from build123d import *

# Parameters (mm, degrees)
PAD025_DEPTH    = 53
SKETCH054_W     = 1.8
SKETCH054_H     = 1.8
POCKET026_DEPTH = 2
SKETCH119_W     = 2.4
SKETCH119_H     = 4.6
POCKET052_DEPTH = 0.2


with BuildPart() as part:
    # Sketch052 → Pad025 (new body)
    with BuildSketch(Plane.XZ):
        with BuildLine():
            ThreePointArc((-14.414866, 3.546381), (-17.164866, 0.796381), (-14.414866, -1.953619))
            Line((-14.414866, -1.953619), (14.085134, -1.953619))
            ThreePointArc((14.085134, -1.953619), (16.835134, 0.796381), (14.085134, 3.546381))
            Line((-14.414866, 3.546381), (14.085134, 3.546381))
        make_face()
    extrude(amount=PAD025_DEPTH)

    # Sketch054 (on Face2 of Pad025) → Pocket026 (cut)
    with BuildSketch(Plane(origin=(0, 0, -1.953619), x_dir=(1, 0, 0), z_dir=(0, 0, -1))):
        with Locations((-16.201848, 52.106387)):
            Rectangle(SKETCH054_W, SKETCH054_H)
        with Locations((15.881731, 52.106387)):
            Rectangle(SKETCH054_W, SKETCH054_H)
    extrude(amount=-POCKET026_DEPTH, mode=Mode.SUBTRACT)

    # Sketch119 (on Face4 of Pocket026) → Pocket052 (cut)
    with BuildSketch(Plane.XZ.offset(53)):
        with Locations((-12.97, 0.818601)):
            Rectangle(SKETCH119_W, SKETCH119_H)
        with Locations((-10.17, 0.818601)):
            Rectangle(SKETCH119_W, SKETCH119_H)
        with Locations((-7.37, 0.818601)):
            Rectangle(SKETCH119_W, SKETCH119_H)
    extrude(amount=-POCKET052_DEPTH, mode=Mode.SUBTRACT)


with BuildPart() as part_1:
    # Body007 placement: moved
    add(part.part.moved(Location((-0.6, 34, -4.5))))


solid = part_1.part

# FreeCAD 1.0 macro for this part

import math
import FreeCAD as App
import Part
import Sketcher
from FreeCAD import Vector

doc = App.newDocument("Part")
body = doc.addObject("PartDesign::Body", "Body")

# Sketch on XZ plane
sketch1 = doc.addObject("Sketcher::SketchObject", "Sketch")
body.addObject(sketch1)
sketch1.AttachmentSupport = (doc.XZ_Plane, [""])
sketch1.MapMode = "FlatFace"
sketch1.addGeometry([
    Part.ArcOfCircle(Part.Circle(Vector(-14.414866, 0.796381, 0), Vector(0, 0, 1), 2.75), math.radians(90), math.radians(270)),
    Part.LineSegment(Vector(-14.414866, -1.953619, 0), Vector(14.085134, -1.953619, 0)),
    Part.ArcOfCircle(Part.Circle(Vector(14.085134, 0.796381, 0), Vector(0, 0, 1), 2.75), math.radians(-90), math.radians(90)),
    Part.LineSegment(Vector(14.085134, 3.546381, 0), Vector(-14.414866, 3.546381, 0)),
], False)
sketch1.addConstraint([
    Sketcher.Constraint("Tangent", 0, 2, 1, 1),
    Sketcher.Constraint("Tangent", 1, 2, 2, 1),
    Sketcher.Constraint("Tangent", 2, 2, 3, 1),
    Sketcher.Constraint("Tangent", 3, 2, 0, 1),
    Sketcher.Constraint("Horizontal", 1),
    Sketcher.Constraint("Horizontal", 3),
    Sketcher.Constraint("Radius", 0, 2.75),
    Sketcher.Constraint("DistanceX", 1, 1, 1, 2, 28.5),
    Sketcher.Constraint("DistanceY", -1, 1, 0, 3, 0.796381),
    Sketcher.Constraint("DistanceX", 0, 3, -1, 1, 14.414866),
])
pad1 = doc.addObject("PartDesign::Pad", "Pad")
body.addObject(pad1)
pad1.Profile = sketch1
pad1.Length = 53

# Sketch on XY plane
sketch2 = doc.addObject("Sketcher::SketchObject", "Sketch001")
body.addObject(sketch2)
sketch2.AttachmentSupport = (doc.XY_Plane, [""])
sketch2.MapMode = "FlatFace"
sketch2.AttachmentOffset = App.Placement(Vector(0, 0, -1.953619), App.Rotation())
sketch2.addGeometry([
    Part.LineSegment(Vector(-17.101848, -53.006387, 0), Vector(-17.101848, -51.206387, 0)),  # 0
    Part.LineSegment(Vector(-17.101848, -51.206387, 0), Vector(-15.301848, -51.206387, 0)),  # 1
    Part.LineSegment(Vector(-15.301848, -51.206387, 0), Vector(-15.301848, -53.006387, 0)),  # 2
    Part.LineSegment(Vector(-15.301848, -53.006387, 0), Vector(-17.101848, -53.006387, 0)),  # 3
    Part.LineSegment(Vector(14.981731, -53.006387, 0), Vector(14.981731, -51.206387, 0)),  # 4
    Part.LineSegment(Vector(14.981731, -51.206387, 0), Vector(16.781731, -51.206387, 0)),  # 5
    Part.LineSegment(Vector(16.781731, -51.206387, 0), Vector(16.781731, -53.006387, 0)),  # 6
    Part.LineSegment(Vector(16.781731, -53.006387, 0), Vector(14.981731, -53.006387, 0)),  # 7
], False)
sketch2.addConstraint([
    Sketcher.Constraint("Coincident", 0, 2, 1, 1),
    Sketcher.Constraint("Coincident", 1, 2, 2, 1),
    Sketcher.Constraint("Coincident", 2, 2, 3, 1),
    Sketcher.Constraint("Coincident", 3, 2, 0, 1),
    Sketcher.Constraint("Coincident", 4, 2, 5, 1),
    Sketcher.Constraint("Coincident", 5, 2, 6, 1),
    Sketcher.Constraint("Coincident", 6, 2, 7, 1),
    Sketcher.Constraint("Coincident", 7, 2, 4, 1),
    Sketcher.Constraint("Vertical", 0),
    Sketcher.Constraint("Horizontal", 1),
    Sketcher.Constraint("Vertical", 2),
    Sketcher.Constraint("Horizontal", 3),
    Sketcher.Constraint("Vertical", 4),
    Sketcher.Constraint("Horizontal", 5),
    Sketcher.Constraint("Vertical", 6),
    Sketcher.Constraint("Horizontal", 7),
    Sketcher.Constraint("Horizontal", 1, 2, 4, 2),
    Sketcher.Constraint("Horizontal", 3, 2, 6, 2),
    Sketcher.Constraint("Equal", 3, 5),
    Sketcher.Constraint("Equal", 7, 0),
    Sketcher.Constraint("DistanceX", 1, 1, 1, 2, 1.8),
    Sketcher.Constraint("DistanceX", 0, 2, -1, 1, 17.101848),
    Sketcher.Constraint("DistanceX", -1, 1, 4, 2, 14.981731),
    Sketcher.Constraint("DistanceY", 0, 2, -1, 1, 51.206387),
])
pocket1 = doc.addObject("PartDesign::Pocket", "Pocket")
body.addObject(pocket1)
pocket1.Profile = sketch2
pocket1.Length = 2
pocket1.Reversed = True

# Sketch on XZ plane
sketch3 = doc.addObject("Sketcher::SketchObject", "Sketch002")
body.addObject(sketch3)
sketch3.AttachmentSupport = (doc.XZ_Plane, [""])
sketch3.MapMode = "FlatFace"
sketch3.AttachmentOffset = App.Placement(Vector(0, 0, 53), App.Rotation())
sketch3.addGeometry([
    Part.LineSegment(Vector(-14.17, 3.118601, 0), Vector(-14.17, -1.481399, 0)),  # 0
    Part.LineSegment(Vector(-14.17, -1.481399, 0), Vector(-11.77, -1.481399, 0)),  # 1
    Part.LineSegment(Vector(-11.77, -1.481399, 0), Vector(-11.77, 3.118601, 0)),  # 2
    Part.LineSegment(Vector(-11.77, 3.118601, 0), Vector(-14.17, 3.118601, 0)),  # 3
    Part.LineSegment(Vector(-11.37, 3.118601, 0), Vector(-11.37, -1.481399, 0)),  # 4
    Part.LineSegment(Vector(-11.37, -1.481399, 0), Vector(-8.97, -1.481399, 0)),  # 5
    Part.LineSegment(Vector(-8.97, -1.481399, 0), Vector(-8.97, 3.118601, 0)),  # 6
    Part.LineSegment(Vector(-8.97, 3.118601, 0), Vector(-11.37, 3.118601, 0)),  # 7
    Part.LineSegment(Vector(-8.57, 3.118601, 0), Vector(-8.57, -1.481399, 0)),  # 8
    Part.LineSegment(Vector(-8.57, -1.481399, 0), Vector(-6.17, -1.481399, 0)),  # 9
    Part.LineSegment(Vector(-6.17, -1.481399, 0), Vector(-6.17, 3.118601, 0)),  # 10
    Part.LineSegment(Vector(-6.17, 3.118601, 0), Vector(-8.57, 3.118601, 0)),  # 11
], False)
sketch3.addConstraint([
    Sketcher.Constraint("Coincident", 0, 2, 1, 1),
    Sketcher.Constraint("Coincident", 1, 2, 2, 1),
    Sketcher.Constraint("Coincident", 2, 2, 3, 1),
    Sketcher.Constraint("Coincident", 3, 2, 0, 1),
    Sketcher.Constraint("Coincident", 4, 2, 5, 1),
    Sketcher.Constraint("Coincident", 5, 2, 6, 1),
    Sketcher.Constraint("Coincident", 6, 2, 7, 1),
    Sketcher.Constraint("Coincident", 7, 2, 4, 1),
    Sketcher.Constraint("Coincident", 8, 2, 9, 1),
    Sketcher.Constraint("Coincident", 9, 2, 10, 1),
    Sketcher.Constraint("Coincident", 10, 2, 11, 1),
    Sketcher.Constraint("Coincident", 11, 2, 8, 1),
    Sketcher.Constraint("Vertical", 0),
    Sketcher.Constraint("Horizontal", 1),
    Sketcher.Constraint("Vertical", 2),
    Sketcher.Constraint("Horizontal", 3),
    Sketcher.Constraint("Vertical", 4),
    Sketcher.Constraint("Horizontal", 5),
    Sketcher.Constraint("Vertical", 6),
    Sketcher.Constraint("Horizontal", 7),
    Sketcher.Constraint("Vertical", 8),
    Sketcher.Constraint("Horizontal", 9),
    Sketcher.Constraint("Vertical", 10),
    Sketcher.Constraint("Horizontal", 11),
    Sketcher.Constraint("Horizontal", 1, 2, 4, 2),
    Sketcher.Constraint("Horizontal", 3, 2, 6, 2),
    Sketcher.Constraint("Horizontal", 5, 2, 8, 2),
    Sketcher.Constraint("Horizontal", 7, 2, 10, 2),
    Sketcher.Constraint("Equal", 3, 5),
    Sketcher.Constraint("Equal", 7, 9),
    Sketcher.Constraint("DistanceX", 1, 1, 1, 2, 2.4),
    Sketcher.Constraint("DistanceY", 0, 2, 0, 1, 4.6),
    Sketcher.Constraint("DistanceX", 1, 2, 4, 2, 0.4),
    Sketcher.Constraint("DistanceX", 5, 2, 8, 2, 0.4),
    Sketcher.Constraint("DistanceX", 0, 2, -1, 1, 14.17),
    Sketcher.Constraint("DistanceY", 0, 2, -1, 1, 1.481399),
])
pocket2 = doc.addObject("PartDesign::Pocket", "Pocket001")
body.addObject(pocket2)
pocket2.Profile = sketch3
pocket2.Length = 0.2
body2 = doc.addObject("PartDesign::Body", "Body001")
doc.recompute()

body.Placement = App.Placement(Vector(-0.6, 34, -4.5), App.Rotation(Vector(0, 0, 1), 0))
boolean = doc.addObject("PartDesign::Boolean", "Boolean")
body2.addObject(boolean)
boolean.Type = "Fuse"
boolean.addObjects([body])

doc.recompute()
